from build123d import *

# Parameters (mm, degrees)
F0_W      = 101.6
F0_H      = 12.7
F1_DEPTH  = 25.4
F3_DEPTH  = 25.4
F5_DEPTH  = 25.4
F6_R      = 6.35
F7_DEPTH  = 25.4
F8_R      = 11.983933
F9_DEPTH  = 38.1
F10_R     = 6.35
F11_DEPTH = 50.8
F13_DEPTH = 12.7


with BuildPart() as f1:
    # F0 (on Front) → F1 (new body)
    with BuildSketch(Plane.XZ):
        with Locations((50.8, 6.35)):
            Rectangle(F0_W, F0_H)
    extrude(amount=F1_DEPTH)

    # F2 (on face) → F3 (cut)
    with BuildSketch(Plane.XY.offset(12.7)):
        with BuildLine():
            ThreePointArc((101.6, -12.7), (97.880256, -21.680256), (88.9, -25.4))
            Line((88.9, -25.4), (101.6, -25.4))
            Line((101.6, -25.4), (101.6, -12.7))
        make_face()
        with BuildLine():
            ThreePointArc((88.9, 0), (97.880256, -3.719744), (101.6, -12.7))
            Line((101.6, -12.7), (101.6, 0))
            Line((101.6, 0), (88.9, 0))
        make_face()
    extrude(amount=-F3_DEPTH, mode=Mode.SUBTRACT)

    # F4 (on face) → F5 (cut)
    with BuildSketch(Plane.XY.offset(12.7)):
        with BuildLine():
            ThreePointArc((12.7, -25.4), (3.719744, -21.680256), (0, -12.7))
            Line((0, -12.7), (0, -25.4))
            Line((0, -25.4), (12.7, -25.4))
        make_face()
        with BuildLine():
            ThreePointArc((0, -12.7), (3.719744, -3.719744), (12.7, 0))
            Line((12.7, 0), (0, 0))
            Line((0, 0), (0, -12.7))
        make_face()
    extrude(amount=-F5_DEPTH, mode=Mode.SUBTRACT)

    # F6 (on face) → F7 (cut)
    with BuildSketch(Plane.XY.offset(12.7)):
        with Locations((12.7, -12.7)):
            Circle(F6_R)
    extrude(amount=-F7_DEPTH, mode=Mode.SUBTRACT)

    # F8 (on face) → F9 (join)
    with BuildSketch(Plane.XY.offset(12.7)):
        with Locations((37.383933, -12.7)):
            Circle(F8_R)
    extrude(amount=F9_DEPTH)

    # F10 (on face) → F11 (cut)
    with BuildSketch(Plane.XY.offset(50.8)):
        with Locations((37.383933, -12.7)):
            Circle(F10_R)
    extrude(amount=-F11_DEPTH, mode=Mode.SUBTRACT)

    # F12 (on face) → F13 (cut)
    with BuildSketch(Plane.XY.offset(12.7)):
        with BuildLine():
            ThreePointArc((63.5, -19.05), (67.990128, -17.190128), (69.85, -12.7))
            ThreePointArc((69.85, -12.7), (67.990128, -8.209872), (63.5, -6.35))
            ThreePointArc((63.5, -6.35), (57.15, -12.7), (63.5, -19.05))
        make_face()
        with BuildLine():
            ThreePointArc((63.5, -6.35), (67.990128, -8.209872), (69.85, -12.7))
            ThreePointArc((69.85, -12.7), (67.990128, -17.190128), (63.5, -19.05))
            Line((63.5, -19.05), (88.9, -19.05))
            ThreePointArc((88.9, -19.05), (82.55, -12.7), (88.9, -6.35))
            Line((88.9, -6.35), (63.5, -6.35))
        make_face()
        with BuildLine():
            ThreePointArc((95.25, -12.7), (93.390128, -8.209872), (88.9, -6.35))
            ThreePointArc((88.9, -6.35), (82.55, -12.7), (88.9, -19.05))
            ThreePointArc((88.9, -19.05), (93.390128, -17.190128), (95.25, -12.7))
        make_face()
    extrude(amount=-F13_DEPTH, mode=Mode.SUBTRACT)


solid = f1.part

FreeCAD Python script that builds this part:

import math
import FreeCAD as App
import Part
import Sketcher
from FreeCAD import Vector
Q = App.Units.Quantity

doc = App.newDocument("Part")
body = doc.addObject("PartDesign::Body", "Body")

# Sketch on XZ plane
sketch1 = body.newObject("Sketcher::SketchObject", "Sketch")
sketch1.AttachmentSupport = (doc.getObject("XZ_Plane"), [""])
sketch1.MapMode = "FlatFace"
sketch1.addGeometry(Part.LineSegment(Vector(0, 13, 0), Vector(0, 0, 0)), False)
sketch1.addGeometry(Part.LineSegment(Vector(0, 0, 0), Vector(102, 0, 0)), False)
sketch1.addGeometry(Part.LineSegment(Vector(102, 0, 0), Vector(102, 13, 0)), False)
sketch1.addGeometry(Part.LineSegment(Vector(102, 13, 0), Vector(0, 13, 0)), False)
sketch1.addConstraint(Sketcher.Constraint("Coincident", 0, 2, 1, 1))
sketch1.addConstraint(Sketcher.Constraint("Coincident", 1, 2, 2, 1))
sketch1.addConstraint(Sketcher.Constraint("Coincident", 2, 2, 3, 1))
sketch1.addConstraint(Sketcher.Constraint("Coincident", 3, 2, 0, 1))
sketch1.addConstraint(Sketcher.Constraint("Vertical", 0))
sketch1.addConstraint(Sketcher.Constraint("Horizontal", 1))
sketch1.addConstraint(Sketcher.Constraint("Vertical", 2))
sketch1.addConstraint(Sketcher.Constraint("Horizontal", 3))
sketch1.addConstraint(Sketcher.Constraint("Coincident", 0, 2, -1, 1))
sketch1.addConstraint(Sketcher.Constraint("DistanceX", 1, 1, 1, 2, Q("4 in")))
sketch1.addConstraint(Sketcher.Constraint("DistanceY", 0, 2, 0, 1, Q("0.5 in")))
pad1 = body.newObject("PartDesign::Pad", "Pad")
pad1.Profile = sketch1
pad1.Length = Q("1 in")

# Sketch on XY plane
sketch2 = body.newObject("Sketcher::SketchObject", "Sketch001")
sketch2.AttachmentSupport = (doc.getObject("XY_Plane"), [""])
sketch2.MapMode = "FlatFace"
sketch2.AttachmentOffset = App.Placement(Vector(0, 0, 0.5 * 25.4), App.Rotation())
sketch2.addGeometry(Part.ArcOfCircle(Part.Circle(Vector(89, -13, 0), Vector(0, 0, 1), 13), math.radians(-90), math.radians(0)), False)
sketch2.addGeometry(Part.LineSegment(Vector(89, -25, 0), Vector(102, -25, 0)), False)
sketch2.addGeometry(Part.LineSegment(Vector(102, -25, 0), Vector(102, -13, 0)), False)
sketch2.addGeometry(Part.ArcOfCircle(Part.Circle(Vector(89, -13, 0), Vector(0, 0, 1), 13), math.radians(0), math.radians(90)), False)
sketch2.addGeometry(Part.LineSegment(Vector(102, -13, 0), Vector(102, 0, 0)), False)
sketch2.addGeometry(Part.LineSegment(Vector(102, 0, 0), Vector(89, 0, 0)), False)
sketch2.addConstraint(Sketcher.Constraint("Tangent", 0, 1, 1, 1))
sketch2.addConstraint(Sketcher.Constraint("Coincident", 1, 2, 2, 1))
sketch2.addConstraint(Sketcher.Constraint("Tangent", 2, 2, 0, 2))
sketch2.addConstraint(Sketcher.Constraint("Tangent", 3, 1, 4, 1))
sketch2.addConstraint(Sketcher.Constraint("Coincident", 4, 2, 5, 1))
sketch2.addConstraint(Sketcher.Constraint("Tangent", 5, 2, 3, 2))
sketch2.addConstraint(Sketcher.Constraint("Horizontal", 1))
sketch2.addConstraint(Sketcher.Constraint("Vertical", 2))
sketch2.addConstraint(Sketcher.Constraint("Vertical", 4))
sketch2.addConstraint(Sketcher.Constraint("Horizontal", 5))
sketch2.addConstraint(Sketcher.Constraint("Coincident", 3, 3, 0, 3))
sketch2.addConstraint(Sketcher.Constraint("Equal", 0, 3))
sketch2.addConstraint(Sketcher.Constraint("PointOnObject", 4, 2, -1))
sketch2.addConstraint(Sketcher.Constraint("Radius", 0, Q("0.5 in")))
sketch2.addConstraint(Sketcher.Constraint("DistanceX", -1, 1, 1, 2, Q("4 in")))
pocket1 = body.newObject("PartDesign::Pocket", "Pocket")
pocket1.Profile = sketch2
pocket1.Length = Q("1 in")

# Sketch on XY plane
sketch3 = body.newObject("Sketcher::SketchObject", "Sketch002")
sketch3.AttachmentSupport = (doc.getObject("XY_Plane"), [""])
sketch3.MapMode = "FlatFace"
sketch3.AttachmentOffset = App.Placement(Vector(0, 0, 0.5 * 25.4), App.Rotation())
sketch3.addGeometry(Part.ArcOfCircle(Part.Circle(Vector(13, -13, 0), Vector(0, 0, 1), 13), math.radians(-180), math.radians(-90)), False)
sketch3.addGeometry(Part.LineSegment(Vector(0, -13, 0), Vector(0, -25, 0)), False)
sketch3.addGeometry(Part.LineSegment(Vector(0, -25, 0), Vector(13, -25, 0)), False)
sketch3.addGeometry(Part.ArcOfCircle(Part.Circle(Vector(13, -13, 0), Vector(0, 0, 1), 13), math.radians(90), math.radians(180)), False)
sketch3.addGeometry(Part.LineSegment(Vector(13, 0, 0), Vector(0, 0, 0)), False)
sketch3.addGeometry(Part.LineSegment(Vector(0, 0, 0), Vector(0, -13, 0)), False)
sketch3.addConstraint(Sketcher.Constraint("Tangent", 0, 1, 1, 1))
sketch3.addConstraint(Sketcher.Constraint("Coincident", 1, 2, 2, 1))
sketch3.addConstraint(Sketcher.Constraint("Tangent", 2, 2, 0, 2))
sketch3.addConstraint(Sketcher.Constraint("Tangent", 3, 1, 4, 1))
sketch3.addConstraint(Sketcher.Constraint("Coincident", 4, 2, 5, 1))
sketch3.addConstraint(Sketcher.Constraint("Tangent", 5, 2, 3, 2))
sketch3.addConstraint(Sketcher.Constraint("Vertical", 1))
sketch3.addConstraint(Sketcher.Constraint("Horizontal", 2))
sketch3.addConstraint(Sketcher.Constraint("Horizontal", 4))
sketch3.addConstraint(Sketcher.Constraint("Vertical", 5))
sketch3.addConstraint(Sketcher.Constraint("Coincident", 4, 2, -1, 1))
sketch3.addConstraint(Sketcher.Constraint("Coincident", 3, 3, 0, 3))
sketch3.addConstraint(Sketcher.Constraint("Equal", 0, 3))
sketch3.addConstraint(Sketcher.Constraint("Radius", 0, Q("0.5 in")))
pocket2 = body.newObject("PartDesign::Pocket", "Pocket001")
pocket2.Profile = sketch3
pocket2.Length = Q("1 in")

# Sketch on XY plane
sketch4 = body.newObject("Sketcher::SketchObject", "Sketch003")
sketch4.AttachmentSupport = (doc.getObject("XY_Plane"), [""])
sketch4.MapMode = "FlatFace"
sketch4.AttachmentOffset = App.Placement(Vector(0, 0, 0.5 * 25.4), App.Rotation())
sketch4.addGeometry(Part.Circle(Vector(13, -13, 0), Vector(0, 0, 1), 6), False)
sketch4.addConstraint(Sketcher.Constraint("Diameter", 0, Q("0.5 in")))
sketch4.addConstraint(Sketcher.Constraint("DistanceX", -1, 1, 0, 3, Q("0.5 in")))
sketch4.addConstraint(Sketcher.Constraint("DistanceY", 0, 3, -1, 1, Q("0.5 in")))
pocket3 = body.newObject("PartDesign::Pocket", "Pocket002")
pocket3.Profile = sketch4
pocket3.Length = Q("1 in")

# Sketch on XY plane
sketch5 = body.newObject("Sketcher::SketchObject", "Sketch004")
sketch5.AttachmentSupport = (doc.getObject("XY_Plane"), [""])
sketch5.MapMode = "FlatFace"
sketch5.AttachmentOffset = App.Placement(Vector(0, 0, 0.5 * 25.4), App.Rotation())
sketch5.addGeometry(Part.Circle(Vector(37, -13, 0), Vector(0, 0, 1), 12), False)
sketch5.addConstraint(Sketcher.Constraint("DistanceY", 0, 3, -1, 1, Q("0.5 in")))
sketch5.addConstraint(Sketcher.Constraint("Diameter", 0, 23.967866))
sketch5.addConstraint(Sketcher.Constraint("DistanceX", -1, 1, 0, 3, 37.383933))
pad2 = body.newObject("PartDesign::Pad", "Pad001")
pad2.Profile = sketch5
pad2.Length = Q("1.5 in")

# Sketch on XY plane
sketch6 = body.newObject("Sketcher::SketchObject", "Sketch005")
sketch6.AttachmentSupport = (doc.getObject("XY_Plane"), [""])
sketch6.MapMode = "FlatFace"
sketch6.AttachmentOffset = App.Placement(Vector(0, 0, 2 * 25.4), App.Rotation())
sketch6.addGeometry(Part.Circle(Vector(37, -13, 0), Vector(0, 0, 1), 6), False)
sketch6.addConstraint(Sketcher.Constraint("Diameter", 0, Q("0.5 in")))
sketch6.addConstraint(Sketcher.Constraint("DistanceY", 0, 3, -1, 1, Q("0.5 in")))
sketch6.addConstraint(Sketcher.Constraint("DistanceX", -1, 1, 0, 3, 37.383933))
pocket4 = body.newObject("PartDesign::Pocket", "Pocket003")
pocket4.Profile = sketch6
pocket4.Length = Q("2 in")

# Sketch on XY plane
sketch7 = body.newObject("Sketcher::SketchObject", "Sketch006")
sketch7.AttachmentSupport = (doc.getObject("XY_Plane"), [""])
sketch7.MapMode = "FlatFace"
sketch7.AttachmentOffset = App.Placement(Vector(0, 0, 0.5 * 25.4), App.Rotation())
sketch7.addGeometry(Part.ArcOfCircle(Part.Circle(Vector(64, -13, 0), Vector(0, 0, 1), 6), math.radians(90), math.radians(270)), False)
sketch7.addGeometry(Part.LineSegment(Vector(64, -19, 0), Vector(89, -19, 0)), False)
sketch7.addGeometry(Part.ArcOfCircle(Part.Circle(Vector(89, -13, 0), Vector(0, 0, 1), 6), math.radians(-90), math.radians(0)), False)
sketch7.addGeometry(Part.ArcOfCircle(Part.Circle(Vector(89, -13, 0), Vector(0, 0, 1), 6), math.radians(0), math.radians(90)), False)
sketch7.addGeometry(Part.LineSegment(Vector(89, -6, 0), Vector(64, -6, 0)), False)
sketch7.addConstraint(Sketcher.Constraint("Tangent", 0, 2, 1, 1))
sketch7.addConstraint(Sketcher.Constraint("Tangent", 1, 2, 2, 1))
sketch7.addConstraint(Sketcher.Constraint("Tangent", 2, 2, 3, 1))
sketch7.addConstraint(Sketcher.Constraint("Tangent", 3, 2, 4, 1))
sketch7.addConstraint(Sketcher.Constraint("Tangent", 4, 2, 0, 1))
sketch7.addConstraint(Sketcher.Constraint("Horizontal", 1))
sketch7.addConstraint(Sketcher.Constraint("Horizontal", 4))
sketch7.addConstraint(Sketcher.Constraint("Equal", 0, 2))
sketch7.addConstraint(Sketcher.Constraint("Horizontal", 3, 3, 2, 2))
sketch7.addConstraint(Sketcher.Constraint("DistanceX", 1, 1, 1, 2, Q("1 in")))
sketch7.addConstraint(Sketcher.Constraint("Radius", 0, Q("0.25 in")))
sketch7.addConstraint(Sketcher.Constraint("DistanceX", -1, 1, 0, 3, Q("2.5 in")))
sketch7.addConstraint(Sketcher.Constraint("DistanceY", 0, 3, -1, 1, Q("0.5 in")))
pocket5 = body.newObject("PartDesign::Pocket", "Pocket004")
pocket5.Profile = sketch7
pocket5.Length = Q("0.5 in")

doc.recompute()
